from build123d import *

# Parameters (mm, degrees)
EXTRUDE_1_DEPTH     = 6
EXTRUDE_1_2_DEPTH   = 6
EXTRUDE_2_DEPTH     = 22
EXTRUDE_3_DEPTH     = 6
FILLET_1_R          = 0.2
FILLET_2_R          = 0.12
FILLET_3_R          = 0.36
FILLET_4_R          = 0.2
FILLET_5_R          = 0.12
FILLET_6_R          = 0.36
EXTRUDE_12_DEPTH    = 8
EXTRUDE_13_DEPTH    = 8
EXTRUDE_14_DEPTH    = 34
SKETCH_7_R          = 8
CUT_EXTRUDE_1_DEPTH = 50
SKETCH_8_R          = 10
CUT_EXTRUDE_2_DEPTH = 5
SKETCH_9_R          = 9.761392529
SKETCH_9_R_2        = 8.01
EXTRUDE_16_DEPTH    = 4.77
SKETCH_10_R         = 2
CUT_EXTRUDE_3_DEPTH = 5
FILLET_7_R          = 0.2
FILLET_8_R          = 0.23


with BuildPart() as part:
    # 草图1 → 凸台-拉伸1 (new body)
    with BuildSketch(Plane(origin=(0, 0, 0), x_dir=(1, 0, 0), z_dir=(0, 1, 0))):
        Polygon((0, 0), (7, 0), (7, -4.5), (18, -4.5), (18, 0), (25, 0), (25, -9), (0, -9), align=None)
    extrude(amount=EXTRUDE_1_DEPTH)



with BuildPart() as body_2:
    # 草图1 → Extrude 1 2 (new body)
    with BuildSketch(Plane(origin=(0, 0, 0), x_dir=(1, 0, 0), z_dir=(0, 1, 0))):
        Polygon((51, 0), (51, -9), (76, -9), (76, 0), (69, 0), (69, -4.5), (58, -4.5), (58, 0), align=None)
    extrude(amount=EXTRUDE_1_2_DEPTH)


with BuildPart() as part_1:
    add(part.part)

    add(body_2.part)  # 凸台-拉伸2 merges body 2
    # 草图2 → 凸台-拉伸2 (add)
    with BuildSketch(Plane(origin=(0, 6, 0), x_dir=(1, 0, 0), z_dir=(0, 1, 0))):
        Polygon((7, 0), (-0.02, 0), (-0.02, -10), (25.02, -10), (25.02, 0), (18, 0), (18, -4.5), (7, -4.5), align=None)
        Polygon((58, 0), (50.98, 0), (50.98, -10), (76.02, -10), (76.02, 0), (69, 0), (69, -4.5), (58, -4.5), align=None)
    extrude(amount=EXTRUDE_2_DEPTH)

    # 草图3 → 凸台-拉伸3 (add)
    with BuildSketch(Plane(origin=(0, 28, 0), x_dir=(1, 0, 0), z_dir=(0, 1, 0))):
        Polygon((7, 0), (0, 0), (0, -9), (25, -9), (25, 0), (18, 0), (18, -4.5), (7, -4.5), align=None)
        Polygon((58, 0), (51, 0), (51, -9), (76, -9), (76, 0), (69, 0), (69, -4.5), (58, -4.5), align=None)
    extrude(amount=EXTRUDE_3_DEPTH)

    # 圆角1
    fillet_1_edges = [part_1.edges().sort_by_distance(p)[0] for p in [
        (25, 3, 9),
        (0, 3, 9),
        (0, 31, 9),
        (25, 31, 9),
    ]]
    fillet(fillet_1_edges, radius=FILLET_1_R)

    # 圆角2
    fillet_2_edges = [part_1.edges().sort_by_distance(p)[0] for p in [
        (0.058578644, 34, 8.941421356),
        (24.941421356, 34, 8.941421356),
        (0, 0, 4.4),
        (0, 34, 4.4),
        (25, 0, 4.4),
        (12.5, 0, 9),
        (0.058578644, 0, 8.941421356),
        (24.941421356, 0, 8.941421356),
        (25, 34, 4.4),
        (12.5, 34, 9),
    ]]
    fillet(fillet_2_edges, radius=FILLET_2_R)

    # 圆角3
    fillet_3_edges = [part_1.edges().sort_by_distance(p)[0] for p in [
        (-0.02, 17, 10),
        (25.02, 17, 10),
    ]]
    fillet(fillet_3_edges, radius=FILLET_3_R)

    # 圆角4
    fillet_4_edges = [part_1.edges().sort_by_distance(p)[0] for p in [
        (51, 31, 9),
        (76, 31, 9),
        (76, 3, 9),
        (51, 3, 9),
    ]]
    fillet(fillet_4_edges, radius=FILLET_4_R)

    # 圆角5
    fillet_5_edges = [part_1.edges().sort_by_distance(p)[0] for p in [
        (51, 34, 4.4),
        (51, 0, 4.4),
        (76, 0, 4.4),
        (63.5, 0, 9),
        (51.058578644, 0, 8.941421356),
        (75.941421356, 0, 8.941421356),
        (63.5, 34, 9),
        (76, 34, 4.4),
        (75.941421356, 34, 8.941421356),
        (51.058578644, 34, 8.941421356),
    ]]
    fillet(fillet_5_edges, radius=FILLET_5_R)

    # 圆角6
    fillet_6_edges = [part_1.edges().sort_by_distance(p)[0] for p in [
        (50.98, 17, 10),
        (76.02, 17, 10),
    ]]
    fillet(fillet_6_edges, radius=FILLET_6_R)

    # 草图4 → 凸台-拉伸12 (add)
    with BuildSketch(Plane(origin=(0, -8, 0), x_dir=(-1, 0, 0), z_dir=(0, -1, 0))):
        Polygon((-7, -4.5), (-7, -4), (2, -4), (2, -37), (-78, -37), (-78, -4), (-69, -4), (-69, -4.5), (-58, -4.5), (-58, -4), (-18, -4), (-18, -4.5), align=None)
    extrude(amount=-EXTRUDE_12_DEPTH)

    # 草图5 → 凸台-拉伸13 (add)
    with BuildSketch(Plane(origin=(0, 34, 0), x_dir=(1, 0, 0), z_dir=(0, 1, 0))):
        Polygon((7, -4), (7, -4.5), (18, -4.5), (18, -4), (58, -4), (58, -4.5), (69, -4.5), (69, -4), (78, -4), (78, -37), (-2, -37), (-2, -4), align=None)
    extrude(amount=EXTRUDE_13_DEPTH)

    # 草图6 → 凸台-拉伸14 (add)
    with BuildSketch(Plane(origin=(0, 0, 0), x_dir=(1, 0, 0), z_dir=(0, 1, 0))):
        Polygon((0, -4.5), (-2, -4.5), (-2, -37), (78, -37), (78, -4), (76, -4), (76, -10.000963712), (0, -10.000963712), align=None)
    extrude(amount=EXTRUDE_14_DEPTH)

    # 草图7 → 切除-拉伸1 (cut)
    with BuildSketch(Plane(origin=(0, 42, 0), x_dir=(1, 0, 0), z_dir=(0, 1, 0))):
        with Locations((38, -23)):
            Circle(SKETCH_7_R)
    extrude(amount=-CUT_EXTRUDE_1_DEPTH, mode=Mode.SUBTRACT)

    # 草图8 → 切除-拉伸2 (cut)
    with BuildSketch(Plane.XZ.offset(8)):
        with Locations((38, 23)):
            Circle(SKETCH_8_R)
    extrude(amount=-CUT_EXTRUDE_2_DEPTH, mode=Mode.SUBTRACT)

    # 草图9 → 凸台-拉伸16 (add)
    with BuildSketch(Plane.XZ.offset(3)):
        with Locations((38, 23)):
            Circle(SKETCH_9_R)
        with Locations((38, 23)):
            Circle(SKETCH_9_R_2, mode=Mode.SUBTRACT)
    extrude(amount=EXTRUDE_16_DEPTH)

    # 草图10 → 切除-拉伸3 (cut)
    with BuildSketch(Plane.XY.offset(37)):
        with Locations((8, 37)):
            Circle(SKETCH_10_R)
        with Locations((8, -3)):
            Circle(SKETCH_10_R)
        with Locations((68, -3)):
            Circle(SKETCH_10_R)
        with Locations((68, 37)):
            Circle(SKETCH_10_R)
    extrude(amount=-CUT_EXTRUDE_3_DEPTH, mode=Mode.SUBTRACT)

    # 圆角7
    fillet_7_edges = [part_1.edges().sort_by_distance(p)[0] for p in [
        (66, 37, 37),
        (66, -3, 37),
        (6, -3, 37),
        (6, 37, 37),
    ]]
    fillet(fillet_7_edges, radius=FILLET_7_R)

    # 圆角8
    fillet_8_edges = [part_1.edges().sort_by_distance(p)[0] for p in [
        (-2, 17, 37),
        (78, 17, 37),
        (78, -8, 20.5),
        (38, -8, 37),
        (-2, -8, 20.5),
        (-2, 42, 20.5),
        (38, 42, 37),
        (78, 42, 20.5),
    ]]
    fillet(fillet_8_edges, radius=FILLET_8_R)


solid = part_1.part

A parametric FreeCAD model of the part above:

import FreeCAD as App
import Part
import Sketcher


def edges_at(feature, points):
    """Names of the edges that pass closest to the given points."""
    edges = feature.Shape.Edges
    near = lambda p: min(range(len(edges)), key=lambda i: edges[i].distToShape(Part.Vertex(*p))[0])
    return sorted({f"Edge{near(p) + 1}" for p in points})

doc = App.newDocument("Part")
body = doc.addObject("PartDesign::Body", "Body")

sketch1 = body.newObject("Sketcher::SketchObject", "Sketch")
sketch1.AttachmentSupport = (doc.getObject("XZ_Plane"), [""])
sketch1.MapMode = "FlatFace"
sketch1.addGeometry([
    Part.LineSegment(App.Vector(7, 0, 0), App.Vector(0, 0, 0)),
    Part.LineSegment(App.Vector(0, 0, 0), App.Vector(0, 9, 0)),
    Part.LineSegment(App.Vector(0, 9, 0), App.Vector(25, 9, 0)),
    Part.LineSegment(App.Vector(25, 9, 0), App.Vector(25, 0, 0)),
    Part.LineSegment(App.Vector(25, 0, 0), App.Vector(18, 0, 0)),
    Part.LineSegment(App.Vector(18, 0, 0), App.Vector(18, 4.5, 0)),
    Part.LineSegment(App.Vector(18, 4.5, 0), App.Vector(7, 4.5, 0)),
    Part.LineSegment(App.Vector(7, 4.5, 0), App.Vector(7, 0, 0)),
], False)
sketch1.addConstraint([
    Sketcher.Constraint("Coincident", 0, 2, 1, 1),
    Sketcher.Constraint("Coincident", 1, 2, 2, 1),
    Sketcher.Constraint("Coincident", 2, 2, 3, 1),
    Sketcher.Constraint("Coincident", 3, 2, 4, 1),
    Sketcher.Constraint("Coincident", 4, 2, 5, 1),
    Sketcher.Constraint("Coincident", 5, 2, 6, 1),
    Sketcher.Constraint("Coincident", 6, 2, 7, 1),
    Sketcher.Constraint("Coincident", 7, 2, 0, 1),
    Sketcher.Constraint("Horizontal", 0),
    Sketcher.Constraint("Vertical", 1),
    Sketcher.Constraint("Horizontal", 2),
    Sketcher.Constraint("Vertical", 3),
    Sketcher.Constraint("Horizontal", 4),
    Sketcher.Constraint("Vertical", 5),
    Sketcher.Constraint("Horizontal", 6),
    Sketcher.Constraint("Vertical", 7),
    Sketcher.Constraint("Coincident", 0, 2, -1, 1),
    Sketcher.Constraint("PointOnObject", 3, 2, -1),
    Sketcher.Constraint("Equal", 0, 4),
    Sketcher.Constraint("DistanceX", 0, 2, 0, 1, 7.0),
    Sketcher.Constraint("DistanceX", 2, 1, 2, 2, 25.0),
    Sketcher.Constraint("DistanceY", 1, 1, 1, 2, 9.0),
    Sketcher.Constraint("DistanceY", 5, 1, 5, 2, 4.5),
])
pad1 = body.newObject("PartDesign::Pad", "Pad")
pad1.Profile = sketch1
pad1.Length = 6
pad1.Reversed = True
body2 = doc.addObject("PartDesign::Body", "Body001")

sketch2 = body2.newObject("Sketcher::SketchObject", "Sketch001")
sketch2.AttachmentSupport = (doc.getObject("XZ_Plane001"), [""])
sketch2.MapMode = "FlatFace"
sketch2.addGeometry([
    Part.LineSegment(App.Vector(51, 0, 0), App.Vector(51, 9, 0)),
    Part.LineSegment(App.Vector(51, 9, 0), App.Vector(76, 9, 0)),
    Part.LineSegment(App.Vector(76, 9, 0), App.Vector(76, 0, 0)),
    Part.LineSegment(App.Vector(76, 0, 0), App.Vector(69, 0, 0)),
    Part.LineSegment(App.Vector(69, 0, 0), App.Vector(69, 4.5, 0)),
    Part.LineSegment(App.Vector(69, 4.5, 0), App.Vector(58, 4.5, 0)),
    Part.LineSegment(App.Vector(58, 4.5, 0), App.Vector(58, 0, 0)),
    Part.LineSegment(App.Vector(58, 0, 0), App.Vector(51, 0, 0)),
], False)
sketch2.addConstraint([
    Sketcher.Constraint("Coincident", 0, 2, 1, 1),
    Sketcher.Constraint("Coincident", 1, 2, 2, 1),
    Sketcher.Constraint("Coincident", 2, 2, 3, 1),
    Sketcher.Constraint("Coincident", 3, 2, 4, 1),
    Sketcher.Constraint("Coincident", 4, 2, 5, 1),
    Sketcher.Constraint("Coincident", 5, 2, 6, 1),
    Sketcher.Constraint("Coincident", 6, 2, 7, 1),
    Sketcher.Constraint("Coincident", 7, 2, 0, 1),
    Sketcher.Constraint("Vertical", 0),
    Sketcher.Constraint("Horizontal", 1),
    Sketcher.Constraint("Vertical", 2),
    Sketcher.Constraint("Horizontal", 3),
    Sketcher.Constraint("Vertical", 4),
    Sketcher.Constraint("Horizontal", 5),
    Sketcher.Constraint("Vertical", 6),
    Sketcher.Constraint("Horizontal", 7),
    Sketcher.Constraint("PointOnObject", 2, 2, -1),
    Sketcher.Constraint("PointOnObject", 6, 2, -1),
    Sketcher.Constraint("Equal", 3, 7),
    Sketcher.Constraint("DistanceX", 1, 1, 1, 2, 25.0),
    Sketcher.Constraint("DistanceX", 3, 2, 3, 1, 7.0),
    Sketcher.Constraint("DistanceY", 0, 1, 0, 2, 9.0),
    Sketcher.Constraint("DistanceY", 4, 1, 4, 2, 4.5),
    Sketcher.Constraint("DistanceX", -1, 1, 0, 2, 51.0),
])
pad2 = body2.newObject("PartDesign::Pad", "Pad001")
pad2.Profile = sketch2
pad2.Length = 6
pad2.Reversed = True
body.AllowCompound = True
doc.recompute()

boolean = body.newObject("PartDesign::Boolean", "Boolean")
boolean.Type = "Fuse"
boolean.addObjects([body2])

sketch3 = body.newObject("Sketcher::SketchObject", "Sketch002")
sketch3.AttachmentSupport = (doc.getObject("XZ_Plane"), [""])
sketch3.MapMode = "FlatFace"
sketch3.AttachmentOffset = App.Placement(App.Vector(0, 0, -6), App.Rotation())
sketch3.addGeometry([
    Part.LineSegment(App.Vector(7, 0, 0), App.Vector(-0.02, 0, 0)),
    Part.LineSegment(App.Vector(-0.02, 0, 0), App.Vector(-0.02, 10, 0)),
    Part.LineSegment(App.Vector(-0.02, 10, 0), App.Vector(25.02, 10, 0)),
    Part.LineSegment(App.Vector(25.02, 10, 0), App.Vector(25.02, 0, 0)),
    Part.LineSegment(App.Vector(25.02, 0, 0), App.Vector(18, 0, 0)),
    Part.LineSegment(App.Vector(18, 0, 0), App.Vector(18, 4.5, 0)),
    Part.LineSegment(App.Vector(18, 4.5, 0), App.Vector(7, 4.5, 0)),
    Part.LineSegment(App.Vector(7, 4.5, 0), App.Vector(7, 0, 0)),
    Part.LineSegment(App.Vector(58, 0, 0), App.Vector(50.98, 0, 0)),
    Part.LineSegment(App.Vector(50.98, 0, 0), App.Vector(50.98, 10, 0)),
    Part.LineSegment(App.Vector(50.98, 10, 0), App.Vector(76.02, 10, 0)),
    Part.LineSegment(App.Vector(76.02, 10, 0), App.Vector(76.02, 0, 0)),
    Part.LineSegment(App.Vector(76.02, 0, 0), App.Vector(69, 0, 0)),
    Part.LineSegment(App.Vector(69, 0, 0), App.Vector(69, 4.5, 0)),
    Part.LineSegment(App.Vector(69, 4.5, 0), App.Vector(58, 4.5, 0)),
    Part.LineSegment(App.Vector(58, 4.5, 0), App.Vector(58, 0, 0)),
], False)
sketch3.addConstraint([
    Sketcher.Constraint("Coincident", 0, 2, 1, 1),
    Sketcher.Constraint("Coincident", 1, 2, 2, 1),
    Sketcher.Constraint("Coincident", 2, 2, 3, 1),
    Sketcher.Constraint("Coincident", 3, 2, 4, 1),
    Sketcher.Constraint("Coincident", 4, 2, 5, 1),
    Sketcher.Constraint("Coincident", 5, 2, 6, 1),
    Sketcher.Constraint("Coincident", 6, 2, 7, 1),
    Sketcher.Constraint("Coincident", 7, 2, 0, 1),
    Sketcher.Constraint("Coincident", 8, 2, 9, 1),
    Sketcher.Constraint("Coincident", 9, 2, 10, 1),
    Sketcher.Constraint("Coincident", 10, 2, 11, 1),
    Sketcher.Constraint("Coincident", 11, 2, 12, 1),
    Sketcher.Constraint("Coincident", 12, 2, 13, 1),
    Sketcher.Constraint("Coincident", 13, 2, 14, 1),
    Sketcher.Constraint("Coincident", 14, 2, 15, 1),
    Sketcher.Constraint("Coincident", 15, 2, 8, 1),
    Sketcher.Constraint("Horizontal", 0),
    Sketcher.Constraint("Vertical", 1),
    Sketcher.Constraint("Horizontal", 2),
    Sketcher.Constraint("Vertical", 3),
    Sketcher.Constraint("Horizontal", 4),
    Sketcher.Constraint("Vertical", 5),
    Sketcher.Constraint("Horizontal", 6),
    Sketcher.Constraint("Vertical", 7),
    Sketcher.Constraint("Horizontal", 8),
    Sketcher.Constraint("Vertical", 9),
    Sketcher.Constraint("Horizontal", 10),
    Sketcher.Constraint("Vertical", 11),
    Sketcher.Constraint("Horizontal", 12),
    Sketcher.Constraint("Vertical", 13),
    Sketcher.Constraint("Horizontal", 14),
    Sketcher.Constraint("Vertical", 15),
    Sketcher.Constraint("PointOnObject", 0, 2, -1),
    Sketcher.Constraint("PointOnObject", 3, 2, -1),
    Sketcher.Constraint("PointOnObject", 8, 2, -1),
    Sketcher.Constraint("PointOnObject", 11, 2, -1),
    Sketcher.Constraint("Horizontal", 2, 2, 9, 2),
    Sketcher.Constraint("Horizontal", 6, 2, 13, 2),
    Sketcher.Constraint("Equal", 0, 4),
    Sketcher.Constraint("Equal", 4, 8),
    Sketcher.Constraint("Equal", 2, 10),
    Sketcher.Constraint("Equal", 8, 12),
    Sketcher.Constraint("DistanceX", 6, 2, 6, 1, 11.0),
    Sketcher.Constraint("DistanceY", 1, 1, 1, 2, 10.0),
    Sketcher.Constraint("DistanceY", 5, 1, 5, 2, 4.5),
    Sketcher.Constraint("DistanceX", -1, 1, 4, 2, 18.0),
    Sketcher.Constraint("DistanceX", -1, 1, 12, 2, 69.0),
    Sketcher.Constraint("DistanceX", 0, 2, 0, 1, 7.02),
])
pad3 = body.newObject("PartDesign::Pad", "Pad002")
pad3.Profile = sketch3
pad3.Length = 22
pad3.Reversed = True

sketch4 = body.newObject("Sketcher::SketchObject", "Sketch003")
sketch4.AttachmentSupport = (doc.getObject("XZ_Plane"), [""])
sketch4.MapMode = "FlatFace"
sketch4.AttachmentOffset = App.Placement(App.Vector(0, 0, -28), App.Rotation())
sketch4.addGeometry([
    Part.LineSegment(App.Vector(7, 0, 0), App.Vector(0, 0, 0)),
    Part.LineSegment(App.Vector(0, 0, 0), App.Vector(0, 9, 0)),
    Part.LineSegment(App.Vector(0, 9, 0), App.Vector(25, 9, 0)),
    Part.LineSegment(App.Vector(25, 9, 0), App.Vector(25, 0, 0)),
    Part.LineSegment(App.Vector(25, 0, 0), App.Vector(18, 0, 0)),
    Part.LineSegment(App.Vector(18, 0, 0), App.Vector(18, 4.5, 0)),
    Part.LineSegment(App.Vector(18, 4.5, 0), App.Vector(7, 4.5, 0)),
    Part.LineSegment(App.Vector(7, 4.5, 0), App.Vector(7, 0, 0)),
    Part.LineSegment(App.Vector(58, 0, 0), App.Vector(51, 0, 0)),
    Part.LineSegment(App.Vector(51, 0, 0), App.Vector(51, 9, 0)),
    Part.LineSegment(App.Vector(51, 9, 0), App.Vector(76, 9, 0)),
    Part.LineSegment(App.Vector(76, 9, 0), App.Vector(76, 0, 0)),
    Part.LineSegment(App.Vector(76, 0, 0), App.Vector(69, 0, 0)),
    Part.LineSegment(App.Vector(69, 0, 0), App.Vector(69, 4.5, 0)),
    Part.LineSegment(App.Vector(69, 4.5, 0), App.Vector(58, 4.5, 0)),
    Part.LineSegment(App.Vector(58, 4.5, 0), App.Vector(58, 0, 0)),
], False)
sketch4.addConstraint([
    Sketcher.Constraint("Coincident", 0, 2, 1, 1),
    Sketcher.Constraint("Coincident", 1, 2, 2, 1),
    Sketcher.Constraint("Coincident", 2, 2, 3, 1),
    Sketcher.Constraint("Coincident", 3, 2, 4, 1),
    Sketcher.Constraint("Coincident", 4, 2, 5, 1),
    Sketcher.Constraint("Coincident", 5, 2, 6, 1),
    Sketcher.Constraint("Coincident", 6, 2, 7, 1),
    Sketcher.Constraint("Coincident", 7, 2, 0, 1),
    Sketcher.Constraint("Coincident", 8, 2, 9, 1),
    Sketcher.Constraint("Coincident", 9, 2, 10, 1),
    Sketcher.Constraint("Coincident", 10, 2, 11, 1),
    Sketcher.Constraint("Coincident", 11, 2, 12, 1),
    Sketcher.Constraint("Coincident", 12, 2, 13, 1),
    Sketcher.Constraint("Coincident", 13, 2, 14, 1),
    Sketcher.Constraint("Coincident", 14, 2, 15, 1),
    Sketcher.Constraint("Coincident", 15, 2, 8, 1),
    Sketcher.Constraint("Horizontal", 0),
    Sketcher.Constraint("Vertical", 1),
    Sketcher.Constraint("Horizontal", 2),
    Sketcher.Constraint("Vertical", 3),
    Sketcher.Constraint("Horizontal", 4),
    Sketcher.Constraint("Vertical", 5),
    Sketcher.Constraint("Horizontal", 6),
    Sketcher.Constraint("Vertical", 7),
    Sketcher.Constraint("Horizontal", 8),
    Sketcher.Constraint("Vertical", 9),
    Sketcher.Constraint("Horizontal", 10),
    Sketcher.Constraint("Vertical", 11),
    Sketcher.Constraint("Horizontal", 12),
    Sketcher.Constraint("Vertical", 13),
    Sketcher.Constraint("Horizontal", 14),
    Sketcher.Constraint("Vertical", 15),
    Sketcher.Constraint("Coincident", 0, 2, -1, 1),
    Sketcher.Constraint("PointOnObject", 3, 2, -1),
    Sketcher.Constraint("PointOnObject", 8, 2, -1),
    Sketcher.Constraint("PointOnObject", 11, 2, -1),
    Sketcher.Constraint("Horizontal", 2, 2, 9, 2),
    Sketcher.Constraint("Horizontal", 6, 2, 13, 2),
    Sketcher.Constraint("Equal", 0, 4),
    Sketcher.Constraint("Equal", 4, 8),
    Sketcher.Constraint("Equal", 2, 10),
    Sketcher.Constraint("Equal", 8, 12),
    Sketcher.Constraint("DistanceX", 0, 2, 0, 1, 7.0),
    Sketcher.Constraint("DistanceX", 2, 1, 2, 2, 25.0),
    Sketcher.Constraint("DistanceY", 1, 1, 1, 2, 9.0),
    Sketcher.Constraint("DistanceY", 5, 1, 5, 2, 4.5),
    Sketcher.Constraint("DistanceX", -1, 1, 8, 2, 51.0),
])
pad4 = body.newObject("PartDesign::Pad", "Pad003")
pad4.Profile = sketch4
pad4.Length = 6
pad4.Reversed = True
doc.recompute()

fillet = body.newObject("PartDesign::Fillet", "Fillet")
fillet.Base = (pad4, edges_at(pad4, [
    (25, 3, 9),
    (0, 3, 9),
    (0, 31, 9),
    (25, 31, 9),
]))
fillet.Radius = 0.2
doc.recompute()

fillet2 = body.newObject("PartDesign::Fillet", "Fillet001")
fillet2.Base = (fillet, edges_at(fillet, [
    (0.059, 34, 8.941),
    (24.941, 34, 8.941),
    (0, 0, 4.4),
    (0, 34, 4.4),
    (25, 0, 4.4),
    (12.5, 0, 9),
    (0.059, 0, 8.941),
    (24.941, 0, 8.941),
    (25, 34, 4.4),
    (12.5, 34, 9),
]))
fillet2.Radius = 0.12
doc.recompute()

fillet3 = body.newObject("PartDesign::Fillet", "Fillet002")
fillet3.Base = (fillet2, edges_at(fillet2, [(-0.02, 17, 10), (25.02, 17, 10)]))
fillet3.Radius = 0.36
doc.recompute()

fillet4 = body.newObject("PartDesign::Fillet", "Fillet003")
fillet4.Base = (fillet3, edges_at(fillet3, [
    (51, 31, 9),
    (76, 31, 9),
    (76, 3, 9),
    (51, 3, 9),
]))
fillet4.Radius = 0.2
doc.recompute()

fillet5 = body.newObject("PartDesign::Fillet", "Fillet004")
fillet5.Base = (fillet4, edges_at(fillet4, [
    (51, 34, 4.4),
    (51, 0, 4.4),
    (76, 0, 4.4),
    (63.5, 0, 9),
    (51.059, 0, 8.941),
    (75.941, 0, 8.941),
    (63.5, 34, 9),
    (76, 34, 4.4),
    (75.941, 34, 8.941),
    (51.059, 34, 8.941),
]))
fillet5.Radius = 0.12
doc.recompute()

fillet6 = body.newObject("PartDesign::Fillet", "Fillet005")
fillet6.Base = (fillet5, edges_at(fillet5, [(50.98, 17, 10), (76.02, 17, 10)]))
fillet6.Radius = 0.36

sketch5 = body.newObject("Sketcher::SketchObject", "Sketch004")
sketch5.AttachmentSupport = (doc.getObject("XZ_Plane"), [""])
sketch5.MapMode = "FlatFace"
sketch5.AttachmentOffset = App.Placement(App.Vector(0, 0, 8), App.Rotation())
sketch5.addGeometry([
    Part.LineSegment(App.Vector(7, 4, 0), App.Vector(7, 4.5, 0)),
    Part.LineSegment(App.Vector(7, 4.5, 0), App.Vector(18, 4.5, 0)),
    Part.LineSegment(App.Vector(18, 4.5, 0), App.Vector(18, 4, 0)),
    Part.LineSegment(App.Vector(18, 4, 0), App.Vector(58, 4, 0)),
    Part.LineSegment(App.Vector(58, 4, 0), App.Vector(58, 4.5, 0)),
    Part.LineSegment(App.Vector(58, 4.5, 0), App.Vector(69, 4.5, 0)),
    Part.LineSegment(App.Vector(69, 4.5, 0), App.Vector(69, 4, 0)),
    Part.LineSegment(App.Vector(69, 4, 0), App.Vector(78, 4, 0)),
    Part.LineSegment(App.Vector(78, 4, 0), App.Vector(78, 37, 0)),
    Part.LineSegment(App.Vector(78, 37, 0), App.Vector(-2, 37, 0)),
    Part.LineSegment(App.Vector(-2, 37, 0), App.Vector(-2, 4, 0)),
    Part.LineSegment(App.Vector(-2, 4, 0), App.Vector(7, 4, 0)),
], False)
sketch5.addConstraint([
    Sketcher.Constraint("Coincident", 0, 2, 1, 1),
    Sketcher.Constraint("Coincident", 1, 2, 2, 1),
    Sketcher.Constraint("Coincident", 2, 2, 3, 1),
    Sketcher.Constraint("Coincident", 3, 2, 4, 1),
    Sketcher.Constraint("Coincident", 4, 2, 5, 1),
    Sketcher.Constraint("Coincident", 5, 2, 6, 1),
    Sketcher.Constraint("Coincident", 6, 2, 7, 1),
    Sketcher.Constraint("Coincident", 7, 2, 8, 1),
    Sketcher.Constraint("Coincident", 8, 2, 9, 1),
    Sketcher.Constraint("Coincident", 9, 2, 10, 1),
    Sketcher.Constraint("Coincident", 10, 2, 11, 1),
    Sketcher.Constraint("Coincident", 11, 2, 0, 1),
    Sketcher.Constraint("Vertical", 0),
    Sketcher.Constraint("Horizontal", 1),
    Sketcher.Constraint("Vertical", 2),
    Sketcher.Constraint("Horizontal", 3),
    Sketcher.Constraint("Vertical", 4),
    Sketcher.Constraint("Horizontal", 5),
    Sketcher.Constraint("Vertical", 6),
    Sketcher.Constraint("Horizontal", 7),
    Sketcher.Constraint("Vertical", 8),
    Sketcher.Constraint("Horizontal", 9),
    Sketcher.Constraint("Vertical", 10),
    Sketcher.Constraint("Horizontal", 11),
    Sketcher.Constraint("Horizontal", 1, 2, 4, 2),
    Sketcher.Constraint("Horizontal", 3, 2, 6, 2),
    Sketcher.Constraint("Horizontal", 7, 2, 10, 2),
    Sketcher.Constraint("Equal", 1, 5),
    Sketcher.Constraint("Equal", 7, 11),
    Sketcher.Constraint("DistanceX", 1, 1, 1, 2, 11.0),
    Sketcher.Constraint("DistanceX", 3, 1, 3, 2, 40.0),
    Sketcher.Constraint("DistanceX", 7, 1, 7, 2, 9.0),
    Sketcher.Constraint("DistanceY", 8, 1, 8, 2, 33.0),
    Sketcher.Constraint("DistanceY", 0, 1, 0, 2, 0.5),
    Sketcher.Constraint("DistanceX", -1, 1, 0, 2, 7.0),
    Sketcher.Constraint("DistanceY", -1, 1, 2, 2, 4.0),
])
pad5 = body.newObject("PartDesign::Pad", "Pad004")
pad5.Profile = sketch5
pad5.Length = 8
pad5.Reversed = True

sketch6 = body.newObject("Sketcher::SketchObject", "Sketch005")
sketch6.AttachmentSupport = (doc.getObject("XZ_Plane"), [""])
sketch6.MapMode = "FlatFace"
sketch6.AttachmentOffset = App.Placement(App.Vector(0, 0, -34), App.Rotation())
sketch6.addGeometry([
    Part.LineSegment(App.Vector(7, 4.5, 0), App.Vector(7, 4, 0)),
    Part.LineSegment(App.Vector(7, 4, 0), App.Vector(-2, 4, 0)),
    Part.LineSegment(App.Vector(-2, 4, 0), App.Vector(-2, 37, 0)),
    Part.LineSegment(App.Vector(-2, 37, 0), App.Vector(78, 37, 0)),
    Part.LineSegment(App.Vector(78, 37, 0), App.Vector(78, 4, 0)),
    Part.LineSegment(App.Vector(78, 4, 0), App.Vector(69, 4, 0)),
    Part.LineSegment(App.Vector(69, 4, 0), App.Vector(69, 4.5, 0)),
    Part.LineSegment(App.Vector(69, 4.5, 0), App.Vector(58, 4.5, 0)),
    Part.LineSegment(App.Vector(58, 4.5, 0), App.Vector(58, 4, 0)),
    Part.LineSegment(App.Vector(58, 4, 0), App.Vector(18, 4, 0)),
    Part.LineSegment(App.Vector(18, 4, 0), App.Vector(18, 4.5, 0)),
    Part.LineSegment(App.Vector(18, 4.5, 0), App.Vector(7, 4.5, 0)),
], False)
sketch6.addConstraint([
    Sketcher.Constraint("Coincident", 0, 2, 1, 1),
    Sketcher.Constraint("Coincident", 1, 2, 2, 1),
    Sketcher.Constraint("Coincident", 2, 2, 3, 1),
    Sketcher.Constraint("Coincident", 3, 2, 4, 1),
    Sketcher.Constraint("Coincident", 4, 2, 5, 1),
    Sketcher.Constraint("Coincident", 5, 2, 6, 1),
    Sketcher.Constraint("Coincident", 6, 2, 7, 1),
    Sketcher.Constraint("Coincident", 7, 2, 8, 1),
    Sketcher.Constraint("Coincident", 8, 2, 9, 1),
    Sketcher.Constraint("Coincident", 9, 2, 10, 1),
    Sketcher.Constraint("Coincident", 10, 2, 11, 1),
    Sketcher.Constraint("Coincident", 11, 2, 0, 1),
    Sketcher.Constraint("Vertical", 0),
    Sketcher.Constraint("Horizontal", 1),
    Sketcher.Constraint("Vertical", 2),
    Sketcher.Constraint("Horizontal", 3),
    Sketcher.Constraint("Vertical", 4),
    Sketcher.Constraint("Horizontal", 5),
    Sketcher.Constraint("Vertical", 6),
    Sketcher.Constraint("Horizontal", 7),
    Sketcher.Constraint("Vertical", 8),
    Sketcher.Constraint("Horizontal", 9),
    Sketcher.Constraint("Vertical", 10),
    Sketcher.Constraint("Horizontal", 11),
    Sketcher.Constraint("Horizontal", 1, 2, 4, 2),
    Sketcher.Constraint("Horizontal", 5, 2, 8, 2),
    Sketcher.Constraint("Horizontal", 7, 2, 10, 2),
    Sketcher.Constraint("Equal", 1, 5),
    Sketcher.Constraint("Equal", 7, 11),
    Sketcher.Constraint("DistanceX", 1, 2, 1, 1, 9.0),
    Sketcher.Constraint("DistanceX", 3, 1, 3, 2, 80.0),
    Sketcher.Constraint("DistanceX", 7, 2, 7, 1, 11.0),
    Sketcher.Constraint("DistanceY", 2, 1, 2, 2, 33.0),
    Sketcher.Constraint("DistanceY", 0, 2, 0, 1, 0.5),
    Sketcher.Constraint("DistanceX", -1, 1, 0, 2, 7.0),
    Sketcher.Constraint("DistanceY", -1, 1, 0, 2, 4.0),
])
pad6 = body.newObject("PartDesign::Pad", "Pad005")
pad6.Profile = sketch6
pad6.Length = 8
pad6.Reversed = True

sketch7 = body.newObject("Sketcher::SketchObject", "Sketch006")
sketch7.AttachmentSupport = (doc.getObject("XZ_Plane"), [""])
sketch7.MapMode = "FlatFace"
sketch7.addGeometry([
    Part.LineSegment(App.Vector(0, 4.5, 0), App.Vector(-2, 4.5, 0)),
    Part.LineSegment(App.Vector(-2, 4.5, 0), App.Vector(-2, 37, 0)),
    Part.LineSegment(App.Vector(-2, 37, 0), App.Vector(78, 37, 0)),
    Part.LineSegment(App.Vector(78, 37, 0), App.Vector(78, 4, 0)),
    Part.LineSegment(App.Vector(78, 4, 0), App.Vector(76, 4, 0)),
    Part.LineSegment(App.Vector(76, 4, 0), App.Vector(76, 10.000964, 0)),
    Part.LineSegment(App.Vector(76, 10.000964, 0), App.Vector(0, 10.000964, 0)),
    Part.LineSegment(App.Vector(0, 10.000964, 0), App.Vector(0, 4.5, 0)),
], False)
sketch7.addConstraint([
    Sketcher.Constraint("Coincident", 0, 2, 1, 1),
    Sketcher.Constraint("Coincident", 1, 2, 2, 1),
    Sketcher.Constraint("Coincident", 2, 2, 3, 1),
    Sketcher.Constraint("Coincident", 3, 2, 4, 1),
    Sketcher.Constraint("Coincident", 4, 2, 5, 1),
    Sketcher.Constraint("Coincident", 5, 2, 6, 1),
    Sketcher.Constraint("Coincident", 6, 2, 7, 1),
    Sketcher.Constraint("Coincident", 7, 2, 0, 1),
    Sketcher.Constraint("Horizontal", 0),
    Sketcher.Constraint("Vertical", 1),
    Sketcher.Constraint("Horizontal", 2),
    Sketcher.Constraint("Vertical", 3),
    Sketcher.Constraint("Horizontal", 4),
    Sketcher.Constraint("Vertical", 5),
    Sketcher.Constraint("Horizontal", 6),
    Sketcher.Constraint("Vertical", 7),
    Sketcher.Constraint("PointOnObject", 6, 2, -2),
    Sketcher.Constraint("Equal", 0, 4),
    Sketcher.Constraint("DistanceX", 0, 2, 0, 1, 2.0),
    Sketcher.Constraint("DistanceX", 2, 1, 2, 2, 80.0),
    Sketcher.Constraint("DistanceY", 3, 2, 3, 1, 33.0),
    Sketcher.Constraint("DistanceY", 1, 1, 1, 2, 32.5),
    Sketcher.Constraint("DistanceY", -1, 1, 1, 2, 37.0),
    Sketcher.Constraint("DistanceY", 5, 1, 5, 2, 6.000964),
])
pad7 = body.newObject("PartDesign::Pad", "Pad006")
pad7.Profile = sketch7
pad7.Length = 34
pad7.Reversed = True

sketch8 = body.newObject("Sketcher::SketchObject", "Sketch007")
sketch8.AttachmentSupport = (doc.getObject("XZ_Plane"), [""])
sketch8.MapMode = "FlatFace"
sketch8.AttachmentOffset = App.Placement(App.Vector(0, 0, -42), App.Rotation())
sketch8.addGeometry(Part.Circle(App.Vector(38, 23, 0), App.Vector(0, 0, 1), 8), False)
sketch8.addConstraint([
    Sketcher.Constraint("Diameter", 0, 16.0),
    Sketcher.Constraint("DistanceX", -1, 1, 0, 3, 38.0),
    Sketcher.Constraint("DistanceY", -1, 1, 0, 3, 23.0),
])
pocket1 = body.newObject("PartDesign::Pocket", "Pocket")
pocket1.Profile = sketch8
pocket1.Length = 50
pocket1.Reversed = True

sketch9 = body.newObject("Sketcher::SketchObject", "Sketch008")
sketch9.AttachmentSupport = (doc.getObject("XZ_Plane"), [""])
sketch9.MapMode = "FlatFace"
sketch9.AttachmentOffset = App.Placement(App.Vector(0, 0, 8), App.Rotation())
sketch9.addGeometry(Part.Circle(App.Vector(38, 23, 0), App.Vector(0, 0, 1), 10), False)
sketch9.addConstraint([
    Sketcher.Constraint("Diameter", 0, 20.0),
    Sketcher.Constraint("DistanceX", -1, 1, 0, 3, 38.0),
    Sketcher.Constraint("DistanceY", -1, 1, 0, 3, 23.0),
])
pocket2 = body.newObject("PartDesign::Pocket", "Pocket001")
pocket2.Profile = sketch9
pocket2.Length = 5

sketch10 = body.newObject("Sketcher::SketchObject", "Sketch009")
sketch10.AttachmentSupport = (doc.getObject("XZ_Plane"), [""])
sketch10.MapMode = "FlatFace"
sketch10.AttachmentOffset = App.Placement(App.Vector(0, 0, 3), App.Rotation())
sketch10.addGeometry([
    Part.Circle(App.Vector(38, 23, 0), App.Vector(0, 0, 1), 9.761393),
    Part.Circle(App.Vector(38, 23, 0), App.Vector(0, 0, 1), 8.01),
], False)
sketch10.addConstraint([
    Sketcher.Constraint("Coincident", 1, 3, 0, 3),
    Sketcher.Constraint("Diameter", 1, 16.02),
    Sketcher.Constraint("DistanceX", -1, 1, 0, 3, 38.0),
    Sketcher.Constraint("DistanceY", -1, 1, 0, 3, 23.0),
    Sketcher.Constraint("Diameter", 0, 19.522785),
])
pad8 = body.newObject("PartDesign::Pad", "Pad007")
pad8.Profile = sketch10
pad8.Length = 4.77

sketch11 = body.newObject("Sketcher::SketchObject", "Sketch010")
sketch11.AttachmentSupport = (doc.getObject("XY_Plane"), [""])
sketch11.MapMode = "FlatFace"
sketch11.AttachmentOffset = App.Placement(App.Vector(0, 0, 37), App.Rotation())
sketch11.addGeometry([
    Part.Circle(App.Vector(8, 37, 0), App.Vector(0, 0, 1), 2),
    Part.Circle(App.Vector(8, -3, 0), App.Vector(0, 0, 1), 2),
    Part.Circle(App.Vector(68, -3, 0), App.Vector(0, 0, 1), 2),
    Part.Circle(App.Vector(68, 37, 0), App.Vector(0, 0, 1), 2),
], False)
sketch11.addConstraint([
    Sketcher.Constraint("Equal", 0, 1),
    Sketcher.Constraint("Equal", 1, 2),
    Sketcher.Constraint("Equal", 2, 3),
    Sketcher.Constraint("Horizontal", 1, 3, 2, 3),
    Sketcher.Constraint("Horizontal", 0, 3, 3, 3),
    Sketcher.Constraint("Vertical", 0, 3, 1, 3),
    Sketcher.Constraint("Vertical", 2, 3, 3, 3),
    Sketcher.Constraint("Diameter", 0, 4.0),
    Sketcher.Constraint("DistanceX", -1, 1, 0, 3, 8.0),
    Sketcher.Constraint("DistanceY", -1, 1, 0, 3, 37.0),
    Sketcher.Constraint("DistanceY", 1, 3, -1, 1, 3.0),
    Sketcher.Constraint("DistanceX", -1, 1, 2, 3, 68.0),
])
pocket3 = body.newObject("PartDesign::Pocket", "Pocket002")
pocket3.Profile = sketch11
pocket3.Length = 5
doc.recompute()

fillet7 = body.newObject("PartDesign::Fillet", "Fillet006")
fillet7.Base = (pocket3, edges_at(pocket3, [
    (66, 37, 37),
    (66, -3, 37),
    (6, -3, 37),
    (6, 37, 37),
]))
fillet7.Radius = 0.2
doc.recompute()

fillet8 = body.newObject("PartDesign::Fillet", "Fillet007")
fillet8.Base = (fillet7, edges_at(fillet7, [
    (-2, 17, 37),
    (78, 17, 37),
    (78, -8, 20.5),
    (38, -8, 37),
    (-2, -8, 20.5),
    (-2, 42, 20.5),
    (38, 42, 37),
    (78, 42, 20.5),
]))
fillet8.Radius = 0.23

doc.recompute()
